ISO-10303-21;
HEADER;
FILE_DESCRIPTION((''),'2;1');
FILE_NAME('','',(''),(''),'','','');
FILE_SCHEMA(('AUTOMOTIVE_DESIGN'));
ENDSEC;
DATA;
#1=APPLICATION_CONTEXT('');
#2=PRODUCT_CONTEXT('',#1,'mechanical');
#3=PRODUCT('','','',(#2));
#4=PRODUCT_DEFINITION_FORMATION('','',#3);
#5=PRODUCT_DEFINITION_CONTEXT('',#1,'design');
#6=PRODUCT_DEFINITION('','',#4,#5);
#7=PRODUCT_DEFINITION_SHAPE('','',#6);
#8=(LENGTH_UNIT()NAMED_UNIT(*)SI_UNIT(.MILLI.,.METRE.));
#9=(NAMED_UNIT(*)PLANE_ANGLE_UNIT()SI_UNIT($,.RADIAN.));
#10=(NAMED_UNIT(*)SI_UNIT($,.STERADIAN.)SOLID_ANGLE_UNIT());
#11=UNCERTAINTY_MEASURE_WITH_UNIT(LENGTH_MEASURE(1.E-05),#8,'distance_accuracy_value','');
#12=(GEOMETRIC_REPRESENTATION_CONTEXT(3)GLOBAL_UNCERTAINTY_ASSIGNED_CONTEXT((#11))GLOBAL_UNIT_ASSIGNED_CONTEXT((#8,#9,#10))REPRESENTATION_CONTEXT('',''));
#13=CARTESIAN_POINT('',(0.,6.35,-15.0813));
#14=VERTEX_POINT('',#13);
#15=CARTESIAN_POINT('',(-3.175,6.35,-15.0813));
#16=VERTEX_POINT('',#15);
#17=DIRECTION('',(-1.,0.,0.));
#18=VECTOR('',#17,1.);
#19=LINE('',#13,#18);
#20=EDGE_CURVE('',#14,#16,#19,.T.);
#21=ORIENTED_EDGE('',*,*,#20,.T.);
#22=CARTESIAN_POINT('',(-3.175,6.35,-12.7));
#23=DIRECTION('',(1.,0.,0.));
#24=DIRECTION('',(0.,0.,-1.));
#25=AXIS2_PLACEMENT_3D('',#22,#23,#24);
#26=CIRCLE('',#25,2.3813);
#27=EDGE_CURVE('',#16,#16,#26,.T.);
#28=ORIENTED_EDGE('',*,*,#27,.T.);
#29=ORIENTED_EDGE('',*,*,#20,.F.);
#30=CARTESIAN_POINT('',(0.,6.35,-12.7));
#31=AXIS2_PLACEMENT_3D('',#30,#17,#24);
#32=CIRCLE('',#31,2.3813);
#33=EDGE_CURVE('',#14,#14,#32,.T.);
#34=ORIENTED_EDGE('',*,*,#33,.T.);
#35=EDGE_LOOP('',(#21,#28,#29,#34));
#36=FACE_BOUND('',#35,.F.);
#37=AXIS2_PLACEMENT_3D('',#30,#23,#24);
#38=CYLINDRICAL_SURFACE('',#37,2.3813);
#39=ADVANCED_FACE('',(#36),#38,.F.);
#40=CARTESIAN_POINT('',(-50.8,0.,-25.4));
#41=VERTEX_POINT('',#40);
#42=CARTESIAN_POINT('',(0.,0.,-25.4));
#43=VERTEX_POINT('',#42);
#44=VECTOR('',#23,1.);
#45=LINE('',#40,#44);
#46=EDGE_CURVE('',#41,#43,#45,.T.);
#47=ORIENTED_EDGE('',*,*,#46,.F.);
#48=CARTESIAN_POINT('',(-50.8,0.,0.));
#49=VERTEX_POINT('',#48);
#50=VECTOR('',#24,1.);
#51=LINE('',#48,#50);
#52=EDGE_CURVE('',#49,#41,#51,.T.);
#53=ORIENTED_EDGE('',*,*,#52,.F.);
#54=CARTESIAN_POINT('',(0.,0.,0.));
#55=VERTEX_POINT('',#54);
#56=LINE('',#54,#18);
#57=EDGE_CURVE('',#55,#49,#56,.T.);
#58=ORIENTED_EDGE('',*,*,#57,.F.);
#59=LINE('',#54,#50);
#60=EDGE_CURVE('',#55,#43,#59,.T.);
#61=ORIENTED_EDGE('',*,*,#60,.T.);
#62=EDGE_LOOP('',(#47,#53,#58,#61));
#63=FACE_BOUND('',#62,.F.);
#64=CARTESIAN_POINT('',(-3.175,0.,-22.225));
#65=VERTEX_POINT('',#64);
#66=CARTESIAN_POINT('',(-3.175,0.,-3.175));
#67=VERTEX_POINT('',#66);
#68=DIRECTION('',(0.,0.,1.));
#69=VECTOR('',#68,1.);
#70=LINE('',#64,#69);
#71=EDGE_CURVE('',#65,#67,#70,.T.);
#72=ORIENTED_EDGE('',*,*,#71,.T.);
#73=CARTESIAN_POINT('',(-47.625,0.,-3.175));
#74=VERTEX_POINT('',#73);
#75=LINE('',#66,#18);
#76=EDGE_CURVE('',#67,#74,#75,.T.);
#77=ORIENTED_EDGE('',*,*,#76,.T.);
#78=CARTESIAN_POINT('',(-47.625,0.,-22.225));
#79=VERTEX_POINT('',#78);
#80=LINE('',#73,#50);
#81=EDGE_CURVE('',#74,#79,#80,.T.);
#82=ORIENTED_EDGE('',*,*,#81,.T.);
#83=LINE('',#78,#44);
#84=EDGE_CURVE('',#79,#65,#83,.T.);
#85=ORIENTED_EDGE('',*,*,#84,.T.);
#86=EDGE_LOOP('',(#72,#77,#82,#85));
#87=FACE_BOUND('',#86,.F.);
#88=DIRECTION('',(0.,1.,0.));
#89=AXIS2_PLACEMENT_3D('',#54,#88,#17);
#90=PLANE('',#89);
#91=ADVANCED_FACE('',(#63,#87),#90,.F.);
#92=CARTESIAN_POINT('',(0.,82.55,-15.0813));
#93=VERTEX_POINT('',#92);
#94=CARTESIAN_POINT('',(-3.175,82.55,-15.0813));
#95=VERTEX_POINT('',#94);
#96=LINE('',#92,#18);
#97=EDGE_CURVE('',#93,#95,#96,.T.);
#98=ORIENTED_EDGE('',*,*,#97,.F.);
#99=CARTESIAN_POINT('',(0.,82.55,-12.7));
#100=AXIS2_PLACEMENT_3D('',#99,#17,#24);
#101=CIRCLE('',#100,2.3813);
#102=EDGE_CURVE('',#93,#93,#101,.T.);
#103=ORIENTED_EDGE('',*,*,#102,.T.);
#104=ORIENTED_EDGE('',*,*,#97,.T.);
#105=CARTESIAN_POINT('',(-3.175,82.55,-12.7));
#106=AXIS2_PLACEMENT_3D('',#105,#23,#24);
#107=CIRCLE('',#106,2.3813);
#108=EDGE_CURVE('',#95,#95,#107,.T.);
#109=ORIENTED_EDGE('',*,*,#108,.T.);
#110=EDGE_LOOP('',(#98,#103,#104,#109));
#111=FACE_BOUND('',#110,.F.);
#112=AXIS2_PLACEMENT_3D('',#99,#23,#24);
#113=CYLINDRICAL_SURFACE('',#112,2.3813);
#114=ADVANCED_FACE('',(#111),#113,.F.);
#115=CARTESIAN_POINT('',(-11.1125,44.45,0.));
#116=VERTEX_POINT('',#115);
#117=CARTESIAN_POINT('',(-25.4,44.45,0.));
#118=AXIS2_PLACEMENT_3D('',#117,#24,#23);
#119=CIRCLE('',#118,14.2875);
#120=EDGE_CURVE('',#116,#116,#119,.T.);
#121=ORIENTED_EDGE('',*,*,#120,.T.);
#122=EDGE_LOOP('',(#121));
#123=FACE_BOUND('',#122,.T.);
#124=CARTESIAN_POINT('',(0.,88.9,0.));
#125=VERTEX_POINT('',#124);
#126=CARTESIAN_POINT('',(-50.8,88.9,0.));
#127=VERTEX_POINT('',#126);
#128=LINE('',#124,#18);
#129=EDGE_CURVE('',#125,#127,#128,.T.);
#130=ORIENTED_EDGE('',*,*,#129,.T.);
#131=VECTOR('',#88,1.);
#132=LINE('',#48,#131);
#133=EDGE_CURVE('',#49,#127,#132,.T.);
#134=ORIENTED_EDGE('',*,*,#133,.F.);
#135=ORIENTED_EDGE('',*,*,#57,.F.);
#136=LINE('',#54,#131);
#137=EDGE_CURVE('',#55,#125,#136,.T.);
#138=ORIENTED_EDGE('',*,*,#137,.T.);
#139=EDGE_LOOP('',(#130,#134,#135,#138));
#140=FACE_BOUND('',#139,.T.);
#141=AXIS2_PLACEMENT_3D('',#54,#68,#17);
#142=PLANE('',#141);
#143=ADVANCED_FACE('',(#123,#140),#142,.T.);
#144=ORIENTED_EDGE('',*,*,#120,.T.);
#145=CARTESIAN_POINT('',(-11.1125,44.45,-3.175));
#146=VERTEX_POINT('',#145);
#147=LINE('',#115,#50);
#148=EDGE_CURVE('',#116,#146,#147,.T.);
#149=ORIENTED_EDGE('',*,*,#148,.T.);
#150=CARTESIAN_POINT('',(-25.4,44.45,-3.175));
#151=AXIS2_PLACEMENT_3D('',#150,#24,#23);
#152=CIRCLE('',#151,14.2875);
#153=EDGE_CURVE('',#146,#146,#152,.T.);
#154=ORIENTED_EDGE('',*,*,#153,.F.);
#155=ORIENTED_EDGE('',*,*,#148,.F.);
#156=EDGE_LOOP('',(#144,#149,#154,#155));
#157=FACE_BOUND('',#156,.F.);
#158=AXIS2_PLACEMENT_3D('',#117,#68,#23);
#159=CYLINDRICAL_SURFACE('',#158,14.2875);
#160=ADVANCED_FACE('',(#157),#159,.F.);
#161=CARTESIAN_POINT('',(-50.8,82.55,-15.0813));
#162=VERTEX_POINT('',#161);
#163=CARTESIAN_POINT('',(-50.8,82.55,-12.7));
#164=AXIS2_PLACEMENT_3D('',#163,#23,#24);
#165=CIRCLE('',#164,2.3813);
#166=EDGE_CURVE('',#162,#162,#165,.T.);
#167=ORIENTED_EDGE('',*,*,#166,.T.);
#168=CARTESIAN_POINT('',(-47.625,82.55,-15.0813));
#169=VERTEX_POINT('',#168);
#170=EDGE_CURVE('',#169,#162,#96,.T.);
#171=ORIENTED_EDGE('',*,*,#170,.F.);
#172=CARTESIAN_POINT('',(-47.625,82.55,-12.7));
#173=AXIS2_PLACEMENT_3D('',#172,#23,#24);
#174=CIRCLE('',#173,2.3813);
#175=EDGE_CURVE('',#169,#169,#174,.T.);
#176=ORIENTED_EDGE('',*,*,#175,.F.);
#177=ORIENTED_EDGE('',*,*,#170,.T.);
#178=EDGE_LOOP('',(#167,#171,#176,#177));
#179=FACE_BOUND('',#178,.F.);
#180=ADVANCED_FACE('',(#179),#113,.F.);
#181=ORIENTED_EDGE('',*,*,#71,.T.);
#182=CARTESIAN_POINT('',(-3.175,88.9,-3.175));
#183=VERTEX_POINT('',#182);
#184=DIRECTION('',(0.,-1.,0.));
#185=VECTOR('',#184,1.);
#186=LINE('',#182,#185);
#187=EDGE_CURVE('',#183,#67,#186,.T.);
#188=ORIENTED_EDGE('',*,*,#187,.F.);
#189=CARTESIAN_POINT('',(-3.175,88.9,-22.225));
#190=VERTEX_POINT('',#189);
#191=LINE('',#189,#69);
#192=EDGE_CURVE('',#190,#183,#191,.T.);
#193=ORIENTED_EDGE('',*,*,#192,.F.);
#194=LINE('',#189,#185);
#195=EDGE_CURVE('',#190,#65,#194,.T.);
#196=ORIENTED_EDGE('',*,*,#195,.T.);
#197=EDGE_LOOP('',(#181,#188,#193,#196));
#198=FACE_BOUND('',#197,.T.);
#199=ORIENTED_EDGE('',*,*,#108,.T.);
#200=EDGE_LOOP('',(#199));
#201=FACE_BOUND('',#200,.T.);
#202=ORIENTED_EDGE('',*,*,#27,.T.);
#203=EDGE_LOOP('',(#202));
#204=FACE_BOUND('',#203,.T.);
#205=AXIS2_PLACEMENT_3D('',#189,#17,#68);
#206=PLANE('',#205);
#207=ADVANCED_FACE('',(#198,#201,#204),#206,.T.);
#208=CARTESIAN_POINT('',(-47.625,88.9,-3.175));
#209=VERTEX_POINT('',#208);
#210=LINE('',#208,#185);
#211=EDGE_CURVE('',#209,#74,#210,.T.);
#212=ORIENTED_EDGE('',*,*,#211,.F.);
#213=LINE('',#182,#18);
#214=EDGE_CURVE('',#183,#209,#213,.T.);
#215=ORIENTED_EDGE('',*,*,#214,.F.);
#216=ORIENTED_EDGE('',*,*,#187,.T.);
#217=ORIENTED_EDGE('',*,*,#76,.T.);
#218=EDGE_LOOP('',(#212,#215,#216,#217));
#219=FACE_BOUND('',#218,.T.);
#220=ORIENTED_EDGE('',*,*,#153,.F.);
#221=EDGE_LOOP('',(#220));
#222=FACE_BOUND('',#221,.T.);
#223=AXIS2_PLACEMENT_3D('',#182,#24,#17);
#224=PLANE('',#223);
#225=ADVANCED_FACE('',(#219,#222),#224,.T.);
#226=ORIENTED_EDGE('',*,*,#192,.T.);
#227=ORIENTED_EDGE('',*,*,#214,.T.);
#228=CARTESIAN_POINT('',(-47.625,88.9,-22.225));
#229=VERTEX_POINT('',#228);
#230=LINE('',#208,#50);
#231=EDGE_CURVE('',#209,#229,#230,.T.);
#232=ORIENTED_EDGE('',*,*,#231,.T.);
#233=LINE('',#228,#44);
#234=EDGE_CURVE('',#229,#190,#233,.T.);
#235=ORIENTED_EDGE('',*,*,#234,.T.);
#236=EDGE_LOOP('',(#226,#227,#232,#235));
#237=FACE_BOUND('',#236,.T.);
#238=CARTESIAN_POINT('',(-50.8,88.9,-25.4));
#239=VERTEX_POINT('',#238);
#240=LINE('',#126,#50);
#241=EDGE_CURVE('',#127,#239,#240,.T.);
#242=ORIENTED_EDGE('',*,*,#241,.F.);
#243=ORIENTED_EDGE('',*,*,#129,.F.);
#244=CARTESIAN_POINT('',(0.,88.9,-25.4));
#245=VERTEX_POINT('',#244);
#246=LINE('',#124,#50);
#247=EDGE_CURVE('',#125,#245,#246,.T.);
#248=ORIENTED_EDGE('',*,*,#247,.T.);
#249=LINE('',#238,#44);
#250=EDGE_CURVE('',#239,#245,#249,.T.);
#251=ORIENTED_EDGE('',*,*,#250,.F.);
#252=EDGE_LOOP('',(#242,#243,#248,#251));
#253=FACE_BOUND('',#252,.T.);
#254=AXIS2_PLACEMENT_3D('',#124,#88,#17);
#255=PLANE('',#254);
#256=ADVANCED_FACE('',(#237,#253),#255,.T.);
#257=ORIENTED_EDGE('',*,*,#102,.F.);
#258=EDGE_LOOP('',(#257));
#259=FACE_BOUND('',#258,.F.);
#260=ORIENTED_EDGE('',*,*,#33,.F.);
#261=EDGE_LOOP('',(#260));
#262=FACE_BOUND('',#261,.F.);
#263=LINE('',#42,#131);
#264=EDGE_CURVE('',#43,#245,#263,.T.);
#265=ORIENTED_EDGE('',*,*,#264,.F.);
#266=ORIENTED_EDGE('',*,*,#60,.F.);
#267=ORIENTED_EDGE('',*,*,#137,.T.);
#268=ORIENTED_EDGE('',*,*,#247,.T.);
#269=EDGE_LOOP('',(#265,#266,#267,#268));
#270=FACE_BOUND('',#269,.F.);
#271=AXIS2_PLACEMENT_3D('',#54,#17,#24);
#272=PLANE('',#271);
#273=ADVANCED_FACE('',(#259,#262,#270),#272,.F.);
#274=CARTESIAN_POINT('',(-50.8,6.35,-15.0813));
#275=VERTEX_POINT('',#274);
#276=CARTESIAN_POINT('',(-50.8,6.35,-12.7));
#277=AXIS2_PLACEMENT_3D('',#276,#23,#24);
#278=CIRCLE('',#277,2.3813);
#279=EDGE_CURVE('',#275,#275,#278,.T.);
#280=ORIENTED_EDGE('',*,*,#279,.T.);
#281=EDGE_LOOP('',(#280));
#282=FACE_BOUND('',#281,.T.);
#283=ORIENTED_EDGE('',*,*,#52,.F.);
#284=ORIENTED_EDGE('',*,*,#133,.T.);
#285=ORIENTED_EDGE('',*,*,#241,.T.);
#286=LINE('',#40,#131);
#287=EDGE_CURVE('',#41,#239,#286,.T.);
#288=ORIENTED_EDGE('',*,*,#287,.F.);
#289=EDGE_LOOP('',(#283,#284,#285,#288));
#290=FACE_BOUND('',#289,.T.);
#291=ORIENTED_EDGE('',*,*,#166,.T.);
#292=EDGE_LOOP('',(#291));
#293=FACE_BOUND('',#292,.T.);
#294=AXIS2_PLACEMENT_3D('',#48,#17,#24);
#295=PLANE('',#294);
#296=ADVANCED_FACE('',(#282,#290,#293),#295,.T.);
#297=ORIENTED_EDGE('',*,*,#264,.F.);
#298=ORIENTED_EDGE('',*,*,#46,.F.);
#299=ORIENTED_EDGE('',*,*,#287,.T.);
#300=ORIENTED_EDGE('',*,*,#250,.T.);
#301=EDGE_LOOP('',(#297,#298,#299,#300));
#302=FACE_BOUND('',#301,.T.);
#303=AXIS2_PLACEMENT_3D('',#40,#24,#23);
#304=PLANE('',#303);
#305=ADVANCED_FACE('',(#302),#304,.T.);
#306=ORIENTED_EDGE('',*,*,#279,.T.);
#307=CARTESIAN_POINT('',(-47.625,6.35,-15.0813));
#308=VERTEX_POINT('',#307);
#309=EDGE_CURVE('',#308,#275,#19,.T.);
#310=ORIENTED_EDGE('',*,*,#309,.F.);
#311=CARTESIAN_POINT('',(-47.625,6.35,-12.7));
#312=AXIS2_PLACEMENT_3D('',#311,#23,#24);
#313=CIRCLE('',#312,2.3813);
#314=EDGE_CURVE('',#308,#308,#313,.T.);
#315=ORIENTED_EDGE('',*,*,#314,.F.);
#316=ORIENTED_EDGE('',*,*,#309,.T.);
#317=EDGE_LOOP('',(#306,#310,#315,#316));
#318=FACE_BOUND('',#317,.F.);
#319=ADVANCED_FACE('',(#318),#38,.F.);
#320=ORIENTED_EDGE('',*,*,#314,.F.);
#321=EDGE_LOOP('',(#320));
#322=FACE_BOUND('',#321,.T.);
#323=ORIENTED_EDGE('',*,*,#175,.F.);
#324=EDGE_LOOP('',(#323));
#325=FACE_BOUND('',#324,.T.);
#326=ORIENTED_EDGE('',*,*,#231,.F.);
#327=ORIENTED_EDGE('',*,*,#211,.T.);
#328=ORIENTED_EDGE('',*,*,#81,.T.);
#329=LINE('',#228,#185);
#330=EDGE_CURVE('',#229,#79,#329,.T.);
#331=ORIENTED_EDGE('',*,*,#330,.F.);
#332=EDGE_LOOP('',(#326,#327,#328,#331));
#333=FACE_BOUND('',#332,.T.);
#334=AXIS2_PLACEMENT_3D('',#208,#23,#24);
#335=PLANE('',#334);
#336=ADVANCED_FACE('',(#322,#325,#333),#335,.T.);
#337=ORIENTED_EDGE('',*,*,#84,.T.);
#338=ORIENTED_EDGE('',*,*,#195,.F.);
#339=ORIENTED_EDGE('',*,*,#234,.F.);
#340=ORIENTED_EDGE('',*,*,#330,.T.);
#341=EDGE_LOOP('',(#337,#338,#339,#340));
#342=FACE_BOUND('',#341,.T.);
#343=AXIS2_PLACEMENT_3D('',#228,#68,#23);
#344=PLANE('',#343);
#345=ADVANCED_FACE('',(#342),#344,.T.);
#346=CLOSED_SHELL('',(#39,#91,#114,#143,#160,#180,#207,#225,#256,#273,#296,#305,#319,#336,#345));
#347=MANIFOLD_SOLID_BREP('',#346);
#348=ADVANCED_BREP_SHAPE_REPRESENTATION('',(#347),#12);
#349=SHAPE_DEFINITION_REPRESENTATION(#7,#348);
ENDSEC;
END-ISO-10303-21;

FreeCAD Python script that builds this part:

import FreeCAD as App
import Part
import Sketcher
Q = App.Units.Quantity

doc = App.newDocument("Part")
body = doc.addObject("PartDesign::Body", "Body")

sketch1 = body.newObject("Sketcher::SketchObject", "Sketch")
sketch1.AttachmentSupport = (doc.getObject("XZ_Plane"), [""])
sketch1.MapMode = "FlatFace"
sketch1.addGeometry([
    Part.LineSegment(App.Vector(-51, 0, 0), App.Vector(0, 0, 0)),
    Part.LineSegment(App.Vector(0, 0, 0), App.Vector(0, -25, 0)),
    Part.LineSegment(App.Vector(0, -25, 0), App.Vector(-51, -25, 0)),
    Part.LineSegment(App.Vector(-51, -25, 0), App.Vector(-51, 0, 0)),
], False)
sketch1.addConstraint([
    Sketcher.Constraint("Coincident", 0, 2, 1, 1),
    Sketcher.Constraint("Coincident", 1, 2, 2, 1),
    Sketcher.Constraint("Coincident", 2, 2, 3, 1),
    Sketcher.Constraint("Coincident", 3, 2, 0, 1),
    Sketcher.Constraint("Horizontal", 0),
    Sketcher.Constraint("Vertical", 1),
    Sketcher.Constraint("Horizontal", 2),
    Sketcher.Constraint("Vertical", 3),
    Sketcher.Constraint("Coincident", 0, 2, -1, 1),
    Sketcher.Constraint("DistanceX", 0, 1, 0, 2, Q("2 in")),
    Sketcher.Constraint("DistanceY", 1, 2, 1, 1, Q("1 in")),
])
pad1 = body.newObject("PartDesign::Pad", "Pad")
pad1.Profile = sketch1
pad1.Length = Q("3.5 in")
pad1.Reversed = True

sketch2 = body.newObject("Sketcher::SketchObject", "Sketch001")
sketch2.AttachmentSupport = (doc.getObject("XZ_Plane"), [""])
sketch2.MapMode = "FlatFace"
sketch2.AttachmentOffset = App.Placement(App.Vector(0, 0, -3.5 * 25.4), App.Rotation())
sketch2.addGeometry([
    Part.LineSegment(App.Vector(-3, -22, 0), App.Vector(-48, -22, 0)),
    Part.LineSegment(App.Vector(-48, -22, 0), App.Vector(-48, -3, 0)),
    Part.LineSegment(App.Vector(-48, -3, 0), App.Vector(-3, -3, 0)),
    Part.LineSegment(App.Vector(-3, -3, 0), App.Vector(-3, -22, 0)),
], False)
sketch2.addConstraint([
    Sketcher.Constraint("Coincident", 0, 2, 1, 1),
    Sketcher.Constraint("Coincident", 1, 2, 2, 1),
    Sketcher.Constraint("Coincident", 2, 2, 3, 1),
    Sketcher.Constraint("Coincident", 3, 2, 0, 1),
    Sketcher.Constraint("Horizontal", 0),
    Sketcher.Constraint("Vertical", 1),
    Sketcher.Constraint("Horizontal", 2),
    Sketcher.Constraint("Vertical", 3),
    Sketcher.Constraint("DistanceY", 1, 2, -1, 1, Q("0.125 in")),
    Sketcher.Constraint("DistanceX", 2, 2, -1, 1, Q("0.125 in")),
    Sketcher.Constraint("DistanceX", 0, 2, 0, 1, Q("1.75 in")),
    Sketcher.Constraint("DistanceY", 1, 1, 1, 2, Q("0.75 in")),
])
pocket1 = body.newObject("PartDesign::Pocket", "Pocket")
pocket1.Profile = sketch2
pocket1.Length = Q("3.5 in")
pocket1.Reversed = True

sketch3 = body.newObject("Sketcher::SketchObject", "Sketch002")
sketch3.AttachmentSupport = (doc.getObject("XY_Plane"), [""])
sketch3.MapMode = "FlatFace"
sketch3.addGeometry(Part.Circle(App.Vector(-25, 44, 0), App.Vector(0, 0, 1), 14), False)
sketch3.addConstraint([
    Sketcher.Constraint("Diameter", 0, Q("1.125 in")),
    Sketcher.Constraint("DistanceX", 0, 3, -1, 1, Q("1 in")),
    Sketcher.Constraint("DistanceY", -1, 1, 0, 3, Q("1.75 in")),
])
pocket2 = body.newObject("PartDesign::Pocket", "Pocket001")
pocket2.Profile = sketch3
pocket2.Length = Q("0.125 in")

sketch4 = body.newObject("Sketcher::SketchObject", "Sketch003")
sketch4.AttachmentSupport = (doc.getObject("YZ_Plane"), [""])
sketch4.MapMode = "FlatFace"
sketch4.addGeometry([
    Part.Circle(App.Vector(6.3, -12.7, 0), App.Vector(0, 0, 1), 2.4),
    Part.Circle(App.Vector(82.5, -12.7, 0), App.Vector(0, 0, 1), 2.4),
], False)
sketch4.addConstraint([
    Sketcher.Constraint("Equal", 0, 1),
    Sketcher.Constraint("Horizontal", 0, 3, 1, 3),
    Sketcher.Constraint("Diameter", 0, Q("0.1875 in")),
    Sketcher.Constraint("DistanceX", 0, 3, 1, 3, Q("3 in")),
    Sketcher.Constraint("DistanceY", 0, 3, -1, 1, Q("0.5 in")),
    Sketcher.Constraint("DistanceX", -1, 1, 0, 3, Q("0.25 in")),
])
pocket3 = body.newObject("PartDesign::Pocket", "Pocket002")
pocket3.Profile = sketch4
pocket3.Length = Q("2 in")

doc.recompute()
